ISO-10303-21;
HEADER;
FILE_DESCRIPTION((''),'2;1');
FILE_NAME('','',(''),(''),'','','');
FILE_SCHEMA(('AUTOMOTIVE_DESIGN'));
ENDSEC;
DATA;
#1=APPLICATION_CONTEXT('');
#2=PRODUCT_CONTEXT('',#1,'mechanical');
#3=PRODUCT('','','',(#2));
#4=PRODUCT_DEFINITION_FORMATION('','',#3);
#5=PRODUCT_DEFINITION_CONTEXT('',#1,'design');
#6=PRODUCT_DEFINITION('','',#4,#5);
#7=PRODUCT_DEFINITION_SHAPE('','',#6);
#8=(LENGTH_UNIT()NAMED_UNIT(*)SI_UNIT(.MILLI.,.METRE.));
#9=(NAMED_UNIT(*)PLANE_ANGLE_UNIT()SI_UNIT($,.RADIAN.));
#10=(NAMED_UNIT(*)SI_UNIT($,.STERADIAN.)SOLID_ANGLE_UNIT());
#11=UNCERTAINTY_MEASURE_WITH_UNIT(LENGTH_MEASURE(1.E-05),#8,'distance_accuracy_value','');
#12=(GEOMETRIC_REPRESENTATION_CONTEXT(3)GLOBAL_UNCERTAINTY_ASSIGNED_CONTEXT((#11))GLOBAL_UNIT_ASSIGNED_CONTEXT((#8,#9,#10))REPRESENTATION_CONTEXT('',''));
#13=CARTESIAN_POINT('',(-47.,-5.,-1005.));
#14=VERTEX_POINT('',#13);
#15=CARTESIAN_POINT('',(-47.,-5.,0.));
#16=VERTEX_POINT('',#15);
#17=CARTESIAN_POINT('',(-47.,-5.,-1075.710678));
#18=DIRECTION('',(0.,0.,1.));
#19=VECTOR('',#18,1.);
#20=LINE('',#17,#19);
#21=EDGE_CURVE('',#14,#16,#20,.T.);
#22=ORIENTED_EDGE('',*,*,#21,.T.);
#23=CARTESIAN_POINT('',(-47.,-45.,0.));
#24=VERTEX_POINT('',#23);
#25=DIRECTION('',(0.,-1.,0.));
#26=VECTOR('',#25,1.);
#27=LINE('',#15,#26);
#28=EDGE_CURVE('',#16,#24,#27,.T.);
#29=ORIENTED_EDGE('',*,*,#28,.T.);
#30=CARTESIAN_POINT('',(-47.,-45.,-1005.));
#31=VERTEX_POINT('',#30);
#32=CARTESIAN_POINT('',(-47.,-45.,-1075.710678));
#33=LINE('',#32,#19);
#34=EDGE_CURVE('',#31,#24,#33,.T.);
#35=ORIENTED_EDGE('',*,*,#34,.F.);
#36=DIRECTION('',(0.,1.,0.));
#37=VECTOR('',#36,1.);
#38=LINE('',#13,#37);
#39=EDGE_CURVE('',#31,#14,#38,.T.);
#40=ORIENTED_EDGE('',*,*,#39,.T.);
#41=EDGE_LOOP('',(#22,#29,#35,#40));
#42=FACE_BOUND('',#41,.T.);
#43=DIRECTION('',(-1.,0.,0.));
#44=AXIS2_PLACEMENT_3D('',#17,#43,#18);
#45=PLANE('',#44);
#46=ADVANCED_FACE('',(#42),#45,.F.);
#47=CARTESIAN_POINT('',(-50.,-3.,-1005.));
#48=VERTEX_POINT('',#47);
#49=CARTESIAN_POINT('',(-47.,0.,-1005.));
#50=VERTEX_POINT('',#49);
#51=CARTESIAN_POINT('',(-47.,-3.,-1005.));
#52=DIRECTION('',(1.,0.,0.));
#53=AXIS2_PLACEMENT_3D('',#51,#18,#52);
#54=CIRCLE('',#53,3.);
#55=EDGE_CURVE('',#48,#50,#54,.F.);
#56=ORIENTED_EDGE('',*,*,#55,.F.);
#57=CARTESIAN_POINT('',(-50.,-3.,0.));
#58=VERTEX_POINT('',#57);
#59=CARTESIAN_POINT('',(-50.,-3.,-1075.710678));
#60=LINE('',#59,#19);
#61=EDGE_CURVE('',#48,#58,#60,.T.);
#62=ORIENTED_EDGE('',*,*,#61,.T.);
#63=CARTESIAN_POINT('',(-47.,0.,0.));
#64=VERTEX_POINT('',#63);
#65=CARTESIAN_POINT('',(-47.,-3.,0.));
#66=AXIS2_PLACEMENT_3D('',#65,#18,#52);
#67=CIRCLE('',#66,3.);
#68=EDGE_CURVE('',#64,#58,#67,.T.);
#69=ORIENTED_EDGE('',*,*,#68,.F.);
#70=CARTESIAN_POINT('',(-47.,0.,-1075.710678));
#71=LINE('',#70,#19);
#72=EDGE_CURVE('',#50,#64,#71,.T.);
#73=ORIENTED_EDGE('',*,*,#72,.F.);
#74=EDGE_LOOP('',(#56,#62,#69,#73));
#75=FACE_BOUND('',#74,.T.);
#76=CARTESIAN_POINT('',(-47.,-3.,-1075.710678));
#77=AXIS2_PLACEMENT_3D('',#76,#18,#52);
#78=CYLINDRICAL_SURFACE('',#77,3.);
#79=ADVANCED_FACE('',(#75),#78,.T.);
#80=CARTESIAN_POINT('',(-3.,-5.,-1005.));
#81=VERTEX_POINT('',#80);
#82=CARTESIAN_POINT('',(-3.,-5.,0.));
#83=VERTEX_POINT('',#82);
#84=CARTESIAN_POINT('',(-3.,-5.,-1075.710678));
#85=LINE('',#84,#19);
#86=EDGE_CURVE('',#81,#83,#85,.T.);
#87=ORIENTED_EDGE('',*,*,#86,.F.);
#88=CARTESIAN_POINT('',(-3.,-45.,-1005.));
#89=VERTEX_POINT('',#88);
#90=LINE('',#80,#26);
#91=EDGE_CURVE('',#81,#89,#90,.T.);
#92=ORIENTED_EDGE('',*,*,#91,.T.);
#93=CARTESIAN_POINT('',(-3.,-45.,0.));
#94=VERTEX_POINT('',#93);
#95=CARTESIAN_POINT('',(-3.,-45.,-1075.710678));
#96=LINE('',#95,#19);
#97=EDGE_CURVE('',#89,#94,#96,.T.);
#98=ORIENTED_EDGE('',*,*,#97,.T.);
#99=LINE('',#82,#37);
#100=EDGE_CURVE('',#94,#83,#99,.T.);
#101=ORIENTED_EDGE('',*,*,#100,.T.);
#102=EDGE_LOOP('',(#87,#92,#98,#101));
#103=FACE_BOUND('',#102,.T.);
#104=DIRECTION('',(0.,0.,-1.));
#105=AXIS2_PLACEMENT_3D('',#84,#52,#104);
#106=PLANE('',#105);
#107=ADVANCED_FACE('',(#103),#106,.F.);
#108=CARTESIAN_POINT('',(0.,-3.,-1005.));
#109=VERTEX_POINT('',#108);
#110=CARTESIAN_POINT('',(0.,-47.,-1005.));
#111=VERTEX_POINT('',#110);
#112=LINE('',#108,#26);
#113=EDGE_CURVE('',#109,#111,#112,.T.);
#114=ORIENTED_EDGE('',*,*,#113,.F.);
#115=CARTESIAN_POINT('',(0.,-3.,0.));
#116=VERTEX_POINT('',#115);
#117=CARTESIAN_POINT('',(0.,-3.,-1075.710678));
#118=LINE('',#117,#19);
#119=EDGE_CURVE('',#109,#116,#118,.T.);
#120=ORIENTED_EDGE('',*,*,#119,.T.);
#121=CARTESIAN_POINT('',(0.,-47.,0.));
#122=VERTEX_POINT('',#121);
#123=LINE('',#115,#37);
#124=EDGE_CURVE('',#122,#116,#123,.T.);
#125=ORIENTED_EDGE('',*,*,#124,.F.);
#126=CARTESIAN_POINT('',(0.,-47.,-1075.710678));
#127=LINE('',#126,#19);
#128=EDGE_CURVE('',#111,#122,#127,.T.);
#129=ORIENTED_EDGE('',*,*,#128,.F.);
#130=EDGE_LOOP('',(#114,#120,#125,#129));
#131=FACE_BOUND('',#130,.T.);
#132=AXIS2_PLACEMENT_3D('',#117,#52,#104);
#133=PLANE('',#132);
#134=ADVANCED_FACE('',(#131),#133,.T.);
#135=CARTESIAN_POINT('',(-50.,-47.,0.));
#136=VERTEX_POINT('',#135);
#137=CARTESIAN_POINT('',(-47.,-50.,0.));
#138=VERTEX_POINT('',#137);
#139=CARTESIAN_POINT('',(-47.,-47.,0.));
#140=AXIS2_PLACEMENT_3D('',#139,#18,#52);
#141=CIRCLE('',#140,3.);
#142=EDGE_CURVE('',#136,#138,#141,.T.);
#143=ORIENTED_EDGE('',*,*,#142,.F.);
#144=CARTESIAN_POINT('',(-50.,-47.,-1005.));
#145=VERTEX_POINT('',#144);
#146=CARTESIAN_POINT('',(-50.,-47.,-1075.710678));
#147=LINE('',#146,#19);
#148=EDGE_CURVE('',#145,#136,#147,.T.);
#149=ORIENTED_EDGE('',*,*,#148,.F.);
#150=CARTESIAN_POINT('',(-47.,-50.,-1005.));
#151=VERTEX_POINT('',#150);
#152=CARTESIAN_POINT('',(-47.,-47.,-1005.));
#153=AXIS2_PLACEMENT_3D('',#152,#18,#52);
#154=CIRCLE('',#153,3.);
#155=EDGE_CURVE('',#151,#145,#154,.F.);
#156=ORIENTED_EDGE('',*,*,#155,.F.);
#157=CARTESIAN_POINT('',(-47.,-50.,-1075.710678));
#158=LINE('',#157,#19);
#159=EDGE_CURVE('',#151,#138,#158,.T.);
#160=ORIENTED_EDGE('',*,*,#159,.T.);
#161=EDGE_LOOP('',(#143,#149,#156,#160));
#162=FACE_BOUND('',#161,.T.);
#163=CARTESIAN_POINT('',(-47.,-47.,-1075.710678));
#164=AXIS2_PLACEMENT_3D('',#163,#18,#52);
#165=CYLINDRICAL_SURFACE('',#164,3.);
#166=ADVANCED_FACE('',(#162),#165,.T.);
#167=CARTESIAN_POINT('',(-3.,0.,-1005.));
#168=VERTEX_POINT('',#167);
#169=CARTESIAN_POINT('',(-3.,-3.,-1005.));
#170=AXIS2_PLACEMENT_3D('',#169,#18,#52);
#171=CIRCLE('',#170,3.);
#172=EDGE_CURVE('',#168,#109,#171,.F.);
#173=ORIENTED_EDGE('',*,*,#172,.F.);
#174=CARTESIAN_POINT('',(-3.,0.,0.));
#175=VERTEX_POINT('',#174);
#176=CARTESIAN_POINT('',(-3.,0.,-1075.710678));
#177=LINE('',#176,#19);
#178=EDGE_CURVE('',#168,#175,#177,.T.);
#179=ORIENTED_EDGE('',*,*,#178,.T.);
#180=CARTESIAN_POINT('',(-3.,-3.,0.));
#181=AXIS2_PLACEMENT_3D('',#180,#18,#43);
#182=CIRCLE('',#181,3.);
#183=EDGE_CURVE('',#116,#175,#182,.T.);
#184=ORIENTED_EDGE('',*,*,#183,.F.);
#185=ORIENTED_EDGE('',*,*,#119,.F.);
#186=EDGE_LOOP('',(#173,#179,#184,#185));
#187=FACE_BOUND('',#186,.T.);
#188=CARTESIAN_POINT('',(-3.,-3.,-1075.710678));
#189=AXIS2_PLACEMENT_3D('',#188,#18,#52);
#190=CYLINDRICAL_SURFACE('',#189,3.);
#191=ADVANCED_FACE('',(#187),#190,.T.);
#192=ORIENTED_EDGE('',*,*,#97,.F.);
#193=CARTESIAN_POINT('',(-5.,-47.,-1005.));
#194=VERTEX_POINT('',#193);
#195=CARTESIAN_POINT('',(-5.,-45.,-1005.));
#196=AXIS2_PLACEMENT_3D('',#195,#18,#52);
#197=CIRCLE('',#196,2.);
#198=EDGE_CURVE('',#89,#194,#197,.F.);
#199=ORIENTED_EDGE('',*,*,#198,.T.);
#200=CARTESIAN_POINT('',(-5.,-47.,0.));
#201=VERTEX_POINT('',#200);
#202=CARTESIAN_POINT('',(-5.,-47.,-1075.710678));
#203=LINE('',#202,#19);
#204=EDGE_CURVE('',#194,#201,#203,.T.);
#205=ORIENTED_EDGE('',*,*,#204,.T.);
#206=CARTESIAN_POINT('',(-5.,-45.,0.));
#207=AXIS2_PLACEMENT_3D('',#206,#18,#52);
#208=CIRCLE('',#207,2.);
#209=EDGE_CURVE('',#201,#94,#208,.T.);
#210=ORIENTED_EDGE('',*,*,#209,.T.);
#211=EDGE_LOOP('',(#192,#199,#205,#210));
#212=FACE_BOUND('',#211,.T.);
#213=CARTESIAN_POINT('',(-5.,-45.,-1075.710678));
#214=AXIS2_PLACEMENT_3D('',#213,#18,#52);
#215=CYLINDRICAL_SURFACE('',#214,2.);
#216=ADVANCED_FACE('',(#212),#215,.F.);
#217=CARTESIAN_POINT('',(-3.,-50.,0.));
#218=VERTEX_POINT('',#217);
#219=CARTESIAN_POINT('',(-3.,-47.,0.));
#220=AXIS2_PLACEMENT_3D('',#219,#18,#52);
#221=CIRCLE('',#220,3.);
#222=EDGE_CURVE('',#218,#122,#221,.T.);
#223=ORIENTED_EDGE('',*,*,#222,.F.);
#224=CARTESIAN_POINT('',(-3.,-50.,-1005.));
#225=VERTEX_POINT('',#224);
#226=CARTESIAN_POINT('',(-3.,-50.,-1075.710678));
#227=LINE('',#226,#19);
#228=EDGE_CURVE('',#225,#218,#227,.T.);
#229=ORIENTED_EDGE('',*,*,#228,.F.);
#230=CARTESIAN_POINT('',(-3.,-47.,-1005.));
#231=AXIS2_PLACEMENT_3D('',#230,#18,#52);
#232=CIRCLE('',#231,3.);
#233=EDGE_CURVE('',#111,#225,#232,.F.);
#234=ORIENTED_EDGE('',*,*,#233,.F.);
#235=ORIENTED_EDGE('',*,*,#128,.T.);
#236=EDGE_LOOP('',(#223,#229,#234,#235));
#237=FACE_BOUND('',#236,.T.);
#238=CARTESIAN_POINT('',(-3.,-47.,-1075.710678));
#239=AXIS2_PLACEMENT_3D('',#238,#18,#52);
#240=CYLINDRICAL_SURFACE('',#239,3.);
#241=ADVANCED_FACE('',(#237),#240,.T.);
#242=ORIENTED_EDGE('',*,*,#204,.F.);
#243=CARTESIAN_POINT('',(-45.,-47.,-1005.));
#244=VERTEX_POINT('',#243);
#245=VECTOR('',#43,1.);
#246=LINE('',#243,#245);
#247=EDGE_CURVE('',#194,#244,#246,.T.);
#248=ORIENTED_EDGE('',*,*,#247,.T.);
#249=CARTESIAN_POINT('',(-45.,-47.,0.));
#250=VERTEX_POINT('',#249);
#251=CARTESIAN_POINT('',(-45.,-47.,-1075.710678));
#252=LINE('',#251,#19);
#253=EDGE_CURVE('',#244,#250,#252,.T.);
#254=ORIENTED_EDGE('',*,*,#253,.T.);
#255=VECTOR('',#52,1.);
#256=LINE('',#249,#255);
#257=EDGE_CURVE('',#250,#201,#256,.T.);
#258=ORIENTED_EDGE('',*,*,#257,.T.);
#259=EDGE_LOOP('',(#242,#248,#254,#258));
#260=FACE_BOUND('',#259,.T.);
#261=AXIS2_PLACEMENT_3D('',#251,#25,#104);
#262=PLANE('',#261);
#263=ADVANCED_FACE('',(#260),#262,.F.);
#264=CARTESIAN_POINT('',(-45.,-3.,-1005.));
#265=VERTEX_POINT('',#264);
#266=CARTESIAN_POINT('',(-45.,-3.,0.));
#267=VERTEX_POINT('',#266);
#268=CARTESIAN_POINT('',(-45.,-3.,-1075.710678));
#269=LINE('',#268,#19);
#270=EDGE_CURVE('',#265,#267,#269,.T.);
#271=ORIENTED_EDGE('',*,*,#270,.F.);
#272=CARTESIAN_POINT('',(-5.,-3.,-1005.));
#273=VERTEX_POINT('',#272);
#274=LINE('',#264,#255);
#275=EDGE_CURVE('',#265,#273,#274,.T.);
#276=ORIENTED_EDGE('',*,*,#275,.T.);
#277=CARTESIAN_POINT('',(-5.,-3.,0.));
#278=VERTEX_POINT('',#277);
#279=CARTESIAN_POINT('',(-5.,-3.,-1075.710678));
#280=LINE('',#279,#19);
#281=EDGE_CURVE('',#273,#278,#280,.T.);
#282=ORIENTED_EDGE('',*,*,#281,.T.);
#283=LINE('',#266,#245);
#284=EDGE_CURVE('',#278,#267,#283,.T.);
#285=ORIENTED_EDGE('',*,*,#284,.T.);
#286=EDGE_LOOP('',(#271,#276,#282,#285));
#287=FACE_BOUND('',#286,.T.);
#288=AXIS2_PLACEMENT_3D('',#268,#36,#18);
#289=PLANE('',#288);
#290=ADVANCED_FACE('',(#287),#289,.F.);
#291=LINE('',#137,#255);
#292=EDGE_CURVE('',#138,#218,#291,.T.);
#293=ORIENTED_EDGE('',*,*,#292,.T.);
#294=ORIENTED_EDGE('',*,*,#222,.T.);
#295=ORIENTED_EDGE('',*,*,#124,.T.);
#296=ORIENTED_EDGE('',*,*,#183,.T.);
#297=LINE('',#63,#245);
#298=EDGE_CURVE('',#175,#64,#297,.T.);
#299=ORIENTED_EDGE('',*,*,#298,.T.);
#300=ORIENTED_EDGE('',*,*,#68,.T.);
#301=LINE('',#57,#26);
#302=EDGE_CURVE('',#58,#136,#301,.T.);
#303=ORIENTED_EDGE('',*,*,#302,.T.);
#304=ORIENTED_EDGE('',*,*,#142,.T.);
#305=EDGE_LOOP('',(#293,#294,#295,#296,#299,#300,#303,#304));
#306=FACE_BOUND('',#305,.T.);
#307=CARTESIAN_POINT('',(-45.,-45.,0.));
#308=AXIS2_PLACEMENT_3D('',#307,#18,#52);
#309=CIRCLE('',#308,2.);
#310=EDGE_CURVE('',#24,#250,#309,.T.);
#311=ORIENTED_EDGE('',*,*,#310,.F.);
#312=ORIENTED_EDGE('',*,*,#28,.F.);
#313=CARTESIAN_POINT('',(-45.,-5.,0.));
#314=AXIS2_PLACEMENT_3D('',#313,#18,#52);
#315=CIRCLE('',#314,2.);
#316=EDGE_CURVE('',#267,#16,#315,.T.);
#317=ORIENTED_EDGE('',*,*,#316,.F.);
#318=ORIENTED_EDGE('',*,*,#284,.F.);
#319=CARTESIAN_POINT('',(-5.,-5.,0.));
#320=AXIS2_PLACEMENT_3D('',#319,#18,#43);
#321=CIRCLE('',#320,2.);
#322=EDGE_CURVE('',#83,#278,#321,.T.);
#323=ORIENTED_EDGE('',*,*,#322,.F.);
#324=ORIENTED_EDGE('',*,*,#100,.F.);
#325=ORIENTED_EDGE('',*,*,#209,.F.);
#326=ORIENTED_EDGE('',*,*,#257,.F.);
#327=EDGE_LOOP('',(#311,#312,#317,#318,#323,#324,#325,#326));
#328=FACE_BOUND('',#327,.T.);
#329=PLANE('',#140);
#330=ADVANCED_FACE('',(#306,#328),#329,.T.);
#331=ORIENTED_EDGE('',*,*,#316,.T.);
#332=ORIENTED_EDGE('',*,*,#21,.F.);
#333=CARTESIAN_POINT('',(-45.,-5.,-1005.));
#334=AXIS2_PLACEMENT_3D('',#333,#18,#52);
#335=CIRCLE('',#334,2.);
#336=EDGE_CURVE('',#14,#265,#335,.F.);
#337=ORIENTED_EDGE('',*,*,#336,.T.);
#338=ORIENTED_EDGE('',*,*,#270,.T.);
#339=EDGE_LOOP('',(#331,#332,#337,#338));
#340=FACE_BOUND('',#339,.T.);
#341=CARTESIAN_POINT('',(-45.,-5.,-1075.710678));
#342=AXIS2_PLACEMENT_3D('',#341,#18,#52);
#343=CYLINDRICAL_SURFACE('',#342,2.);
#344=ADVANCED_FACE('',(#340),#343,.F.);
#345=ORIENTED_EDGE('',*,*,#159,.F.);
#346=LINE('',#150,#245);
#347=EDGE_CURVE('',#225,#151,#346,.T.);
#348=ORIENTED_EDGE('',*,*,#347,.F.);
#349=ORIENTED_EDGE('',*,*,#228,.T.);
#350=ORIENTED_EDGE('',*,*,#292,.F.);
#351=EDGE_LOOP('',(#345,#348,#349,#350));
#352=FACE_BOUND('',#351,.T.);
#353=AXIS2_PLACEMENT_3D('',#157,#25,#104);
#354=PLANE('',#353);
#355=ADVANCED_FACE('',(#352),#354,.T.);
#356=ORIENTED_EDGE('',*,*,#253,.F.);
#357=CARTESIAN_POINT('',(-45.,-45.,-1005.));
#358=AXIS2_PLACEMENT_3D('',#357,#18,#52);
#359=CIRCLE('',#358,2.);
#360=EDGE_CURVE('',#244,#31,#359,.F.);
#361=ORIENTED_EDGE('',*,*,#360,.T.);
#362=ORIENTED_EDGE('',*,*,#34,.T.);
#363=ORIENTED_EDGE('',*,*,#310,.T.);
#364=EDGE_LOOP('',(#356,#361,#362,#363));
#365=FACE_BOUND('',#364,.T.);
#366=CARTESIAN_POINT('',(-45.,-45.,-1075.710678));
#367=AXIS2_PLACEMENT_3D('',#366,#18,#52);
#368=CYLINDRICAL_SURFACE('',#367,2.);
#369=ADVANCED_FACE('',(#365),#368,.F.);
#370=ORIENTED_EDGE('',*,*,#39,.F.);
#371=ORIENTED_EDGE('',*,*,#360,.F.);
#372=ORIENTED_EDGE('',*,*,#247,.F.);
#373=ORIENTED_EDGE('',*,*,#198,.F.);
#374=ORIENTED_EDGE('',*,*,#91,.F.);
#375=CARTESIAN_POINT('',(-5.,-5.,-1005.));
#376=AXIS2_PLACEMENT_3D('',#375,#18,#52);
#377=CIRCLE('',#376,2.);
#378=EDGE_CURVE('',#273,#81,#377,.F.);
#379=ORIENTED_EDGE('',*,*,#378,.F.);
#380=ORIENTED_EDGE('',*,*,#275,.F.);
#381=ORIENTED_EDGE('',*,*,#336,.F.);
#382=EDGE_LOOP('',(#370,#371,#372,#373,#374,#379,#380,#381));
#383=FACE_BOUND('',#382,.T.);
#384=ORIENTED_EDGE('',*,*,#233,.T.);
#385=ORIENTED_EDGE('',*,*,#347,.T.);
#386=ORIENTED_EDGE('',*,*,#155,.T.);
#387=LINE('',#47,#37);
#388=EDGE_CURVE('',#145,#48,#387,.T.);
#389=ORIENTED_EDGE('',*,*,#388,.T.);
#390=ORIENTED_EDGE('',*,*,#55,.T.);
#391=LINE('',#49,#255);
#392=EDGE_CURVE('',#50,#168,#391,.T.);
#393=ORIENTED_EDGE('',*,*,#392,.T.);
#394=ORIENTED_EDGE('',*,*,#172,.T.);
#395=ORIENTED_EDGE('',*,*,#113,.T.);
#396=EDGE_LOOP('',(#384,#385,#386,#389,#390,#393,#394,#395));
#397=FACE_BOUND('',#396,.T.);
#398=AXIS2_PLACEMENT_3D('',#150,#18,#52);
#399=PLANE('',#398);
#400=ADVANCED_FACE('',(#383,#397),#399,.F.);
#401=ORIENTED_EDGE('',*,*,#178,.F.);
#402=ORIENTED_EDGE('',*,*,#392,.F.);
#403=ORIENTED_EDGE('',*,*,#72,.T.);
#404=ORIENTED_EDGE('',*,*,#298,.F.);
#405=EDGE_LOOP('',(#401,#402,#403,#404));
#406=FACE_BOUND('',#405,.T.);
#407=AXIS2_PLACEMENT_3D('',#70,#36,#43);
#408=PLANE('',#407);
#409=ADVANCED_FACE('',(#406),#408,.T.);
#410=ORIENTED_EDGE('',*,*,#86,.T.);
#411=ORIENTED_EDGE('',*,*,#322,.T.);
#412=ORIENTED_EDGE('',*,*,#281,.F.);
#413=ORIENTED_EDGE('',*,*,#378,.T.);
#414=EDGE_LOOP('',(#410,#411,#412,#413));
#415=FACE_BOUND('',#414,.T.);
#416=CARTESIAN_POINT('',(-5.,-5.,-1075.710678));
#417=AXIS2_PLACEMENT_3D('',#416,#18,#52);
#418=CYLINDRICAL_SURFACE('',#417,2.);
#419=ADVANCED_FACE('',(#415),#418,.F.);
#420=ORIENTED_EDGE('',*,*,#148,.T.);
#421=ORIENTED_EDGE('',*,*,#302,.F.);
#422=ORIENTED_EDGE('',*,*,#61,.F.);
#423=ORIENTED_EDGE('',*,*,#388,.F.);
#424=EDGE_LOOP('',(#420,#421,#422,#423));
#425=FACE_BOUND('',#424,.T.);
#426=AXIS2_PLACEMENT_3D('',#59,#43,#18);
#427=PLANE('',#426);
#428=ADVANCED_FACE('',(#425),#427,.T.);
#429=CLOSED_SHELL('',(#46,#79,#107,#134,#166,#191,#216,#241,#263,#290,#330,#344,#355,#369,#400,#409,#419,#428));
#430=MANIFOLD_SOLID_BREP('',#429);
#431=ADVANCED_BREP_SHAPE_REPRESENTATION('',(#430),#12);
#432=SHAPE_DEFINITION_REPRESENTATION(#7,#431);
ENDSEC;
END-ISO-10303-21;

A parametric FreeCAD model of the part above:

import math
import FreeCAD as App
import Part
import Sketcher

V = App.Vector

doc = App.newDocument("Part")
params = doc.addObject("Spreadsheet::Sheet", "Params")
for row, (alias, value) in enumerate([
    ("sketch1_radius", "3 mm"),
    ("sketch1_radius2", "2 mm"),
    ("sketch1_width", "44 mm"),
    ("pad1_length", "1005 mm"),
], start=1):
    params.set(f"A{row}", alias)
    params.set(f"B{row}", "=" + value)
    params.setAlias(f"B{row}", alias)

body = doc.addObject("PartDesign::Body", "Body")

# Sketch on XY plane
sketch1 = body.newObject("Sketcher::SketchObject", "Sketch")
sketch1.AttachmentSupport = (doc.getObject("XY_Plane"), [""])
sketch1.MapMode = "FlatFace"
sketch1.addGeometry(Part.LineSegment(V(-3, 0, 0), V(-47, 0, 0)), False)
sketch1.addGeometry(Part.ArcOfCircle(Part.Circle(V(-47, -3, 0), V(0, 0, 1), 3), math.radians(90), math.radians(180)), False)
sketch1.addGeometry(Part.LineSegment(V(-50, -3, 0), V(-50, -47, 0)), False)
sketch1.addGeometry(Part.ArcOfCircle(Part.Circle(V(-47, -47, 0), V(0, 0, 1), 3), math.radians(180), math.radians(270)), False)
sketch1.addGeometry(Part.LineSegment(V(-47, -50, 0), V(-3, -50, 0)), False)
sketch1.addGeometry(Part.ArcOfCircle(Part.Circle(V(-3, -47, 0), V(0, 0, 1), 3), math.radians(-90), math.radians(0)), False)
sketch1.addGeometry(Part.LineSegment(V(0, -47, 0), V(0, -3, 0)), False)
sketch1.addGeometry(Part.ArcOfCircle(Part.Circle(V(-3, -3, 0), V(0, 0, 1), 3), math.radians(0), math.radians(90)), False)
sketch1.addGeometry(Part.LineSegment(V(-45, -3, 0), V(-5, -3, 0)), False)
sketch1.addGeometry(Part.ArcOfCircle(Part.Circle(V(-5, -5, 0), V(0, 0, 1), 2), math.radians(0), math.radians(90)), False)
sketch1.addGeometry(Part.LineSegment(V(-3, -5, 0), V(-3, -45, 0)), False)
sketch1.addGeometry(Part.ArcOfCircle(Part.Circle(V(-5, -45, 0), V(0, 0, 1), 2), math.radians(-90), math.radians(0)), False)
sketch1.addGeometry(Part.LineSegment(V(-5, -47, 0), V(-45, -47, 0)), False)
sketch1.addGeometry(Part.ArcOfCircle(Part.Circle(V(-45, -45, 0), V(0, 0, 1), 2), math.radians(-180), math.radians(-90)), False)
sketch1.addGeometry(Part.LineSegment(V(-47, -45, 0), V(-47, -5, 0)), False)
sketch1.addGeometry(Part.ArcOfCircle(Part.Circle(V(-45, -5, 0), V(0, 0, 1), 2), math.radians(90), math.radians(180)), False)
sketch1.addConstraint(Sketcher.Constraint("Tangent", 0, 2, 1, 1))
sketch1.addConstraint(Sketcher.Constraint("Tangent", 1, 2, 2, 1))
sketch1.addConstraint(Sketcher.Constraint("Tangent", 2, 2, 3, 1))
sketch1.addConstraint(Sketcher.Constraint("Tangent", 3, 2, 4, 1))
sketch1.addConstraint(Sketcher.Constraint("Tangent", 4, 2, 5, 1))
sketch1.addConstraint(Sketcher.Constraint("Tangent", 5, 2, 6, 1))
sketch1.addConstraint(Sketcher.Constraint("Tangent", 6, 2, 7, 1))
sketch1.addConstraint(Sketcher.Constraint("Tangent", 7, 2, 0, 1))
sketch1.addConstraint(Sketcher.Constraint("Tangent", 8, 2, 9, 2))
sketch1.addConstraint(Sketcher.Constraint("Tangent", 9, 1, 10, 1))
sketch1.addConstraint(Sketcher.Constraint("Tangent", 10, 2, 11, 2))
sketch1.addConstraint(Sketcher.Constraint("Tangent", 11, 1, 12, 1))
sketch1.addConstraint(Sketcher.Constraint("Tangent", 12, 2, 13, 2))
sketch1.addConstraint(Sketcher.Constraint("Tangent", 13, 1, 14, 1))
sketch1.addConstraint(Sketcher.Constraint("Tangent", 14, 2, 15, 2))
sketch1.addConstraint(Sketcher.Constraint("Tangent", 15, 1, 8, 1))
sketch1.addConstraint(Sketcher.Constraint("Horizontal", 0))
sketch1.addConstraint(Sketcher.Constraint("Vertical", 2))
sketch1.addConstraint(Sketcher.Constraint("Horizontal", 4))
sketch1.addConstraint(Sketcher.Constraint("Vertical", 6))
sketch1.addConstraint(Sketcher.Constraint("Horizontal", 8))
sketch1.addConstraint(Sketcher.Constraint("Vertical", 10))
sketch1.addConstraint(Sketcher.Constraint("Horizontal", 12))
sketch1.addConstraint(Sketcher.Constraint("Vertical", 14))
sketch1.addConstraint(Sketcher.Constraint("Equal", 1, 3))
sketch1.addConstraint(Sketcher.Constraint("Equal", 3, 5))
sketch1.addConstraint(Sketcher.Constraint("Equal", 5, 7))
sketch1.addConstraint(Sketcher.Constraint("Equal", 9, 11))
sketch1.addConstraint(Sketcher.Constraint("Equal", 11, 13))
sketch1.addConstraint(Sketcher.Constraint("Equal", 13, 15))
sketch1.addConstraint(Sketcher.Constraint("PointOnObject", 0, 2, -1))
sketch1.addConstraint(Sketcher.Constraint("PointOnObject", 5, 2, -2))
sketch1.addConstraint(Sketcher.Constraint("Horizontal", 6, 2, 8, 2))
sketch1.addConstraint(Sketcher.Constraint("Horizontal", 5, 2, 11, 1))
sketch1.addConstraint(Sketcher.Constraint("Vertical", 7, 2, 9, 1))
sketch1.addConstraint(Sketcher.Constraint("Vertical", 3, 2, 13, 1))
sketch1.addConstraint(Sketcher.Constraint("Equal", 4, 2))
sketch1.addConstraint(Sketcher.Constraint("Radius", 1, 3.0))
sketch1.addConstraint(Sketcher.Constraint("Radius", 9, 2.0))
sketch1.addConstraint(Sketcher.Constraint("DistanceX", 0, 2, 0, 1, 44.0))
sketch1.setExpression("Constraints[37]", "Params.sketch1_radius")
sketch1.setExpression("Constraints[38]", "Params.sketch1_radius2")
sketch1.setExpression("Constraints[39]", "Params.sketch1_width")
pad1 = body.newObject("PartDesign::Pad", "Pad")
pad1.Profile = sketch1
pad1.setExpression("Length", "Params.pad1_length")
pad1.Reversed = True

doc.recompute()
